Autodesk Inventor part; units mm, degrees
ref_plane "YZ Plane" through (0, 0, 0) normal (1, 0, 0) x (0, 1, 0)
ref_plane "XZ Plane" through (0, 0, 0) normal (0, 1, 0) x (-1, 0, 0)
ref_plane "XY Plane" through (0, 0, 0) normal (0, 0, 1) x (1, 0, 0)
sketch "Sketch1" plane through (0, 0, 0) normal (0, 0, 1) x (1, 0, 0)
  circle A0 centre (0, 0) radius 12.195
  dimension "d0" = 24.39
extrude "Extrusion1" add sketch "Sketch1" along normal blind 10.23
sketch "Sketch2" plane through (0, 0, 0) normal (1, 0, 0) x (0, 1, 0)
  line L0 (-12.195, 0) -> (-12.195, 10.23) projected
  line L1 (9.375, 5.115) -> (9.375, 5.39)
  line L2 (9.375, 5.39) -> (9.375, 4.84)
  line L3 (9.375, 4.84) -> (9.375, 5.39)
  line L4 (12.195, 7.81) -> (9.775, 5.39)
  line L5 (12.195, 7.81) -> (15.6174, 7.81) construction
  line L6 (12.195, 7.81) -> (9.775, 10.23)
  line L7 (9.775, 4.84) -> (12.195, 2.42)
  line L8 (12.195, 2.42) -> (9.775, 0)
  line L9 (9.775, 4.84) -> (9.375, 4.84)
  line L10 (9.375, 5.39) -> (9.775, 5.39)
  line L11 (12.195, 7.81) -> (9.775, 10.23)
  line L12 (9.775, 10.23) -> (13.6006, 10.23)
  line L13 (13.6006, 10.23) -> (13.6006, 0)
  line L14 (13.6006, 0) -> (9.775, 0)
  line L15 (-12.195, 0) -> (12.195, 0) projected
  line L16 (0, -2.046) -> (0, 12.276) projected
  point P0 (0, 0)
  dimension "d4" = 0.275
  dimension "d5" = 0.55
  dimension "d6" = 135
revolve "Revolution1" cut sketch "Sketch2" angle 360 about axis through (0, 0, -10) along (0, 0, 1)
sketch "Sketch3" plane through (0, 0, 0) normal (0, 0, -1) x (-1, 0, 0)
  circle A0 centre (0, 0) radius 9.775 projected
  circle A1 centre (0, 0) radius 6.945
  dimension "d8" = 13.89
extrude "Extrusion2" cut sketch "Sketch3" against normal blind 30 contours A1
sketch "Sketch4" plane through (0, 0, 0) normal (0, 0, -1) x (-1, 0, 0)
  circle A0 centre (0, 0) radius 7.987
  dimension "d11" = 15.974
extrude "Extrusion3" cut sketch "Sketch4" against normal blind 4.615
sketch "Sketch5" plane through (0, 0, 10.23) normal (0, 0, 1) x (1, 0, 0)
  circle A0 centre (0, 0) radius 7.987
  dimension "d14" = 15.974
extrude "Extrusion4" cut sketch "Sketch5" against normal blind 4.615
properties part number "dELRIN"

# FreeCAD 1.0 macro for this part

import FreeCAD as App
import Part
import Sketcher
from FreeCAD import Vector

doc = App.newDocument("Part")
body = doc.addObject("PartDesign::Body", "Body")

# Sketch on XY plane
sketch1 = body.newObject("Sketcher::SketchObject", "Sketch")
sketch1.AttachmentSupport = (doc.getObject("XY_Plane"), [""])
sketch1.MapMode = "FlatFace"
sketch1.addGeometry(Part.Circle(Vector(0, 0, 0), Vector(0, 0, 1), 12.195), False)
sketch1.addConstraint(Sketcher.Constraint("Coincident", 0, 3, -1, 1))
sketch1.addConstraint(Sketcher.Constraint("Diameter", 0, 24.39))
pad1 = body.newObject("PartDesign::Pad", "Pad")
pad1.Profile = sketch1
pad1.Length = 10.23

# Sketch on YZ plane
sketch2 = body.newObject("Sketcher::SketchObject", "Sketch001")
sketch2.AttachmentSupport = (doc.getObject("YZ_Plane"), [""])
sketch2.MapMode = "FlatFace"
sketch2.addGeometry(Part.LineSegment(Vector(9.375, 5.39, 0), Vector(9.375, 4.84, 0)), False)
sketch2.addGeometry(Part.LineSegment(Vector(9.375, 4.84, 0), Vector(9.775, 4.84, 0)), False)
sketch2.addGeometry(Part.LineSegment(Vector(9.775, 4.84, 0), Vector(12.195, 2.42, 0)), False)
sketch2.addGeometry(Part.LineSegment(Vector(12.195, 2.42, 0), Vector(9.775, 0, 0)), False)
sketch2.addGeometry(Part.LineSegment(Vector(9.775, 0, 0), Vector(13.6006, 0, 0)), False)
sketch2.addGeometry(Part.LineSegment(Vector(13.6006, 0, 0), Vector(13.6006, 10.23, 0)), False)
sketch2.addGeometry(Part.LineSegment(Vector(13.6006, 10.23, 0), Vector(9.775, 10.23, 0)), False)
sketch2.addGeometry(Part.LineSegment(Vector(9.775, 10.23, 0), Vector(12.195, 7.81, 0)), False)
sketch2.addGeometry(Part.LineSegment(Vector(12.195, 7.81, 0), Vector(9.775, 5.39, 0)), False)
sketch2.addGeometry(Part.LineSegment(Vector(9.775, 5.39, 0), Vector(9.375, 5.39, 0)), False)
sketch2.addConstraint(Sketcher.Constraint("Coincident", 0, 2, 1, 1))
sketch2.addConstraint(Sketcher.Constraint("Coincident", 1, 2, 2, 1))
sketch2.addConstraint(Sketcher.Constraint("Coincident", 2, 2, 3, 1))
sketch2.addConstraint(Sketcher.Constraint("Coincident", 3, 2, 4, 1))
sketch2.addConstraint(Sketcher.Constraint("Coincident", 4, 2, 5, 1))
sketch2.addConstraint(Sketcher.Constraint("Coincident", 5, 2, 6, 1))
sketch2.addConstraint(Sketcher.Constraint("Coincident", 6, 2, 7, 1))
sketch2.addConstraint(Sketcher.Constraint("Coincident", 7, 2, 8, 1))
sketch2.addConstraint(Sketcher.Constraint("Coincident", 8, 2, 9, 1))
sketch2.addConstraint(Sketcher.Constraint("Coincident", 9, 2, 0, 1))
sketch2.addConstraint(Sketcher.Constraint("Vertical", 0))
sketch2.addConstraint(Sketcher.Constraint("Horizontal", 1))
sketch2.addConstraint(Sketcher.Constraint("Horizontal", 4))
sketch2.addConstraint(Sketcher.Constraint("Vertical", 5))
sketch2.addConstraint(Sketcher.Constraint("Horizontal", 6))
sketch2.addConstraint(Sketcher.Constraint("Horizontal", 9))
sketch2.addConstraint(Sketcher.Constraint("PointOnObject", 3, 2, -1))
sketch2.addConstraint(Sketcher.Constraint("Perpendicular", 2, 3))
sketch2.addConstraint(Sketcher.Constraint("Perpendicular", 3, 7))
sketch2.addConstraint(Sketcher.Constraint("Perpendicular", 7, 8))
sketch2.addConstraint(Sketcher.Constraint("Vertical", 1, 2, 3, 2))
sketch2.addConstraint(Sketcher.Constraint("Vertical", 3, 2, 6, 2))
sketch2.addConstraint(Sketcher.Constraint("Vertical", 2, 2, 7, 2))
sketch2.addConstraint(Sketcher.Constraint("Vertical", 6, 2, 8, 2))
sketch2.addConstraint(Sketcher.Constraint("Equal", 2, 3))
sketch2.addConstraint(Sketcher.Constraint("DistanceY", 0, 2, 0, 1, 0.55))
sketch2.addConstraint(Sketcher.Constraint("DistanceX", 1, 1, 1, 2, 0.4))
sketch2.addConstraint(Sketcher.Constraint("DistanceY", 5, 1, 5, 2, 10.23))
sketch2.addConstraint(Sketcher.Constraint("DistanceX", 4, 1, 4, 2, 3.8256))
sketch2.addConstraint(Sketcher.Constraint("DistanceX", -1, 1, 0, 2, 9.375))
groove = body.newObject("PartDesign::Groove", "Groove")
groove.Profile = sketch2
groove.ReferenceAxis = (sketch2, ["V_Axis"])
groove.Angle = 360

# Sketch on XY plane
sketch3 = body.newObject("Sketcher::SketchObject", "Sketch002")
sketch3.AttachmentSupport = (doc.getObject("XY_Plane"), [""])
sketch3.MapMode = "FlatFace"
sketch3.addGeometry(Part.Circle(Vector(0, 0, 0), Vector(0, 0, 1), 6.945), False)
sketch3.addConstraint(Sketcher.Constraint("Coincident", 0, 3, -1, 1))
sketch3.addConstraint(Sketcher.Constraint("Diameter", 0, 13.89))
pocket1 = body.newObject("PartDesign::Pocket", "Pocket")
pocket1.Profile = sketch3
pocket1.Length = 30
pocket1.Reversed = True

# Sketch on XY plane
sketch4 = body.newObject("Sketcher::SketchObject", "Sketch003")
sketch4.AttachmentSupport = (doc.getObject("XY_Plane"), [""])
sketch4.MapMode = "FlatFace"
sketch4.addGeometry(Part.Circle(Vector(0, 0, 0), Vector(0, 0, 1), 7.987), False)
sketch4.addConstraint(Sketcher.Constraint("Coincident", 0, 3, -1, 1))
sketch4.addConstraint(Sketcher.Constraint("Diameter", 0, 15.974))
pocket2 = body.newObject("PartDesign::Pocket", "Pocket001")
pocket2.Profile = sketch4
pocket2.Length = 4.615
pocket2.Reversed = True

# Sketch on XY plane
sketch5 = body.newObject("Sketcher::SketchObject", "Sketch004")
sketch5.AttachmentSupport = (doc.getObject("XY_Plane"), [""])
sketch5.MapMode = "FlatFace"
sketch5.AttachmentOffset = App.Placement(Vector(0, 0, 10.23), App.Rotation())
sketch5.addGeometry(Part.Circle(Vector(0, 0, 0), Vector(0, 0, 1), 7.987), False)
sketch5.addConstraint(Sketcher.Constraint("Coincident", 0, 3, -1, 1))
sketch5.addConstraint(Sketcher.Constraint("Diameter", 0, 15.974))
pocket3 = body.newObject("PartDesign::Pocket", "Pocket002")
pocket3.Profile = sketch5
pocket3.Length = 4.615

doc.recompute()
